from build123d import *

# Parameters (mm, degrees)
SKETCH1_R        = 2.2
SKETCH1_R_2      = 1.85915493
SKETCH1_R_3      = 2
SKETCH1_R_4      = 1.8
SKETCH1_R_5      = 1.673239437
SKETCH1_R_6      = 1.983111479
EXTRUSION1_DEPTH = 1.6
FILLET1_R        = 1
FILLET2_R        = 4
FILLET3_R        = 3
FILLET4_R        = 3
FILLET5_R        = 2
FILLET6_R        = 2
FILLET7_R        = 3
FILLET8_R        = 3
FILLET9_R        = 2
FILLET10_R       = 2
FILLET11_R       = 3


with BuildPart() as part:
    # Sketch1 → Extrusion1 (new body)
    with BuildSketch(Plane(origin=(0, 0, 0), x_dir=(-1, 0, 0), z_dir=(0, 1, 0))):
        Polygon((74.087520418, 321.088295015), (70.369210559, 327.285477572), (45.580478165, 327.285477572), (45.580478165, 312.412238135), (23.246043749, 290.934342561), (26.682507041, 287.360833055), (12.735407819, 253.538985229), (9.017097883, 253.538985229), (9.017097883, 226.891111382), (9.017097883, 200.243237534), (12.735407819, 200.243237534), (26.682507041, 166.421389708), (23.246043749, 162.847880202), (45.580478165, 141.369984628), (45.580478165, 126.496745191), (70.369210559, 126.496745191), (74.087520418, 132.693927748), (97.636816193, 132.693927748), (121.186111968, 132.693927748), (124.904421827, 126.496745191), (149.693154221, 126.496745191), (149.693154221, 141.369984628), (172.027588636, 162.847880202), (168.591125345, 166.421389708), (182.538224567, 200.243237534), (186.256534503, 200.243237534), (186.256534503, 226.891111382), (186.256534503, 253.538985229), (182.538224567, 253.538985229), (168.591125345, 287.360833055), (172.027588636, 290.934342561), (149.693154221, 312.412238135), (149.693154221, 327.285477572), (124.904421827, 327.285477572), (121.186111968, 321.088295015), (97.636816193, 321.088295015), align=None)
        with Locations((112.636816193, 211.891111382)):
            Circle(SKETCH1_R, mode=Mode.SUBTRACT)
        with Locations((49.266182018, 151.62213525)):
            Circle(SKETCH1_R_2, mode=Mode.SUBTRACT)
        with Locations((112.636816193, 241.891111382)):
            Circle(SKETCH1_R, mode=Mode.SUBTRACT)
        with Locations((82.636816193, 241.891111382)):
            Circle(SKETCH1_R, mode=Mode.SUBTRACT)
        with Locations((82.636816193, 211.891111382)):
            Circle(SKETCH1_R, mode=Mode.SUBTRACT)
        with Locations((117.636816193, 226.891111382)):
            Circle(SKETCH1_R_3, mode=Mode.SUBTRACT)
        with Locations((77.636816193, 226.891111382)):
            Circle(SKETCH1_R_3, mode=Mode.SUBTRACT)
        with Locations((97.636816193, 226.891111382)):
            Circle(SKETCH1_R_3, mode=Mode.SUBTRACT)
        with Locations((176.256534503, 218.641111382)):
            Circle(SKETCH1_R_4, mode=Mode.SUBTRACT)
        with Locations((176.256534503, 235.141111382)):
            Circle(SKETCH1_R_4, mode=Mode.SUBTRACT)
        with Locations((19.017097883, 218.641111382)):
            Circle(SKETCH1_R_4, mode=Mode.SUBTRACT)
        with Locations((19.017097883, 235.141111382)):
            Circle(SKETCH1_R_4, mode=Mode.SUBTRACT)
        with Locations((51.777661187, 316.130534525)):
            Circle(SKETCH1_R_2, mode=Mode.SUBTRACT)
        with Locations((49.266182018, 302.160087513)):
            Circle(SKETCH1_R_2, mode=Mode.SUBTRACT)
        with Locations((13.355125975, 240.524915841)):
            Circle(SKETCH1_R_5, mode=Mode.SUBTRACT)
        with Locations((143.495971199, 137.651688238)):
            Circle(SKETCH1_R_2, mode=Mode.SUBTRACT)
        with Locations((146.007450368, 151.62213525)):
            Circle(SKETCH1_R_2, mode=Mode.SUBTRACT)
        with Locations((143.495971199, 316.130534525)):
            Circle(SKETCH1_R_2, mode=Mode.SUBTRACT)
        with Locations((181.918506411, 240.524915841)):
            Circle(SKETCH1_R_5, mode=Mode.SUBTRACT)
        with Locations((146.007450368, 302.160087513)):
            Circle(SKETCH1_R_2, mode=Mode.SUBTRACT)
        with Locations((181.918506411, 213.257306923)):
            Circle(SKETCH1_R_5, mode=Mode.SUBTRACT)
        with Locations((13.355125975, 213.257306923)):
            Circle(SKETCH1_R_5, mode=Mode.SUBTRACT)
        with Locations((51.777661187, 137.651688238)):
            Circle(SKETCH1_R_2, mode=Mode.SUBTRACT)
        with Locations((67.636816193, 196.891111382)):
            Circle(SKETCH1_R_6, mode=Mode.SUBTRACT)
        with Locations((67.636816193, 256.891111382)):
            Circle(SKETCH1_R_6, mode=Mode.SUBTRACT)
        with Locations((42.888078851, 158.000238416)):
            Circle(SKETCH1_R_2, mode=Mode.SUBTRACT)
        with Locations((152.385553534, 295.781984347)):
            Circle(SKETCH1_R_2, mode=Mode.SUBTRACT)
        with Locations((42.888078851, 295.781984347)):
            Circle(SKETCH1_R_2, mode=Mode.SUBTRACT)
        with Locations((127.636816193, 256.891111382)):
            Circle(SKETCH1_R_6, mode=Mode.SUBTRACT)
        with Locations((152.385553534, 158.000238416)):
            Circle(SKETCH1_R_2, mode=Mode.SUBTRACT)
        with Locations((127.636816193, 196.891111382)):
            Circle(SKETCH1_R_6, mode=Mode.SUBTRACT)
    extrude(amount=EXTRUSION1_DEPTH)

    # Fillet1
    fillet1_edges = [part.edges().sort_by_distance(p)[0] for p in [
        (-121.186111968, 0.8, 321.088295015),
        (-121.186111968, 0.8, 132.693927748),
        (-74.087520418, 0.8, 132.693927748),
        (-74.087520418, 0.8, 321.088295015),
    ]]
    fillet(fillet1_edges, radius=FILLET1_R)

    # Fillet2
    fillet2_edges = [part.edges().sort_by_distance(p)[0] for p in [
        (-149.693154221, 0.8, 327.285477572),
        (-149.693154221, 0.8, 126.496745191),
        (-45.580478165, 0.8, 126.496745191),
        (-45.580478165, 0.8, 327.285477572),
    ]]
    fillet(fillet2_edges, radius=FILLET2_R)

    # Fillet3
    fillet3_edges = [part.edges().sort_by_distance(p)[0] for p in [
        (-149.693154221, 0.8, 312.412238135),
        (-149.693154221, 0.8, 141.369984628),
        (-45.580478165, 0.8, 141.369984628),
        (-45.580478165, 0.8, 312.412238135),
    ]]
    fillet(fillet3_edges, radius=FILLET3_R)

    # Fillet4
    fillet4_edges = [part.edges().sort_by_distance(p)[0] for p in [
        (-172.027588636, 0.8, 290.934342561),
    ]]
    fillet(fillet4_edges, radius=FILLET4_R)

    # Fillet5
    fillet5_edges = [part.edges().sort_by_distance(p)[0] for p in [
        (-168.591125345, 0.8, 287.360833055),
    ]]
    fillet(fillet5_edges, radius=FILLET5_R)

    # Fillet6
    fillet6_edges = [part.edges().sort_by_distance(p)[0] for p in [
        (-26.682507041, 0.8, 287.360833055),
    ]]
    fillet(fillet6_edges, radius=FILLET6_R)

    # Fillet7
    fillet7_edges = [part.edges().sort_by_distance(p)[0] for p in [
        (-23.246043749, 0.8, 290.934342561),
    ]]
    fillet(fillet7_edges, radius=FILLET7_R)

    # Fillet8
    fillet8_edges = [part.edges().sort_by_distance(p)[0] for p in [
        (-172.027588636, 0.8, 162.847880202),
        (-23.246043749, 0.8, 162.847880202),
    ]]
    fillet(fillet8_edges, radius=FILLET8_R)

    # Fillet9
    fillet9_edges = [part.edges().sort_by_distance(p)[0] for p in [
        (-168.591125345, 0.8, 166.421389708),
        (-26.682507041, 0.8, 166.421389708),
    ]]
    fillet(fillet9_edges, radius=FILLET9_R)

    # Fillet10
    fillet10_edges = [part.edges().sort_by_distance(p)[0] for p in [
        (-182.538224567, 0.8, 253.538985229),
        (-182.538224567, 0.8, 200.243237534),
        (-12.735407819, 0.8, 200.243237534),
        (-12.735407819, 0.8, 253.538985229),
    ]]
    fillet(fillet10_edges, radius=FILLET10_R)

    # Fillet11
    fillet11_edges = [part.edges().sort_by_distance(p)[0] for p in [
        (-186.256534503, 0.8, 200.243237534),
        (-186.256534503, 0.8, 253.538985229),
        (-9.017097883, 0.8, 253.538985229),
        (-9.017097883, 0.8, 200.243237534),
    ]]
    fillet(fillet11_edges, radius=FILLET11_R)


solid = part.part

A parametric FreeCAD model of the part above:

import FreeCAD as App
import Part
import Sketcher
Q = App.Units.Quantity


def edges_at(feature, points):
    """Names of the edges that pass closest to the given points."""
    edges = feature.Shape.Edges
    near = lambda p: min(range(len(edges)), key=lambda i: edges[i].distToShape(Part.Vertex(*p))[0])
    return sorted({f"Edge{near(p) + 1}" for p in points})

doc = App.newDocument("Part")
params = doc.addObject("Spreadsheet::Sheet", "Params")
for row, (alias, value) in enumerate([
    ("sketch1_diameter", "4 mm"),
    ("sketch1_diameter2", "3.6 mm"),
    ("sketch1_diameter3", "4.4 mm"),
    ("pad1_length", "1.6 mm"),
    ("fillet_radius", "1 mm"),
    ("fillet2_radius", "4 mm"),
    ("fillet3_radius", "3 mm"),
    ("fillet4_radius", "3 mm"),
    ("fillet5_radius", "2 mm"),
    ("fillet6_radius", "2 mm"),
    ("fillet7_radius", "3 mm"),
    ("fillet8_radius", "3 mm"),
    ("fillet9_radius", "2 mm"),
    ("fillet10_radius", "2 mm"),
    ("fillet11_radius", "3 mm"),
], start=1):
    params.set(f"A{row}", alias)
    params.set(f"B{row}", "=" + value)
    params.setAlias(f"B{row}", alias)

body = doc.addObject("PartDesign::Body", "Body")

# Sketch on XZ plane
sketch1 = body.newObject("Sketcher::SketchObject", "Sketch")
sketch1.AttachmentSupport = (doc.getObject("XZ_Plane"), [""])
sketch1.MapMode = "FlatFace"
sketch1.addGeometry([
    Part.LineSegment(App.Vector(-74.1, 321.1, 0), App.Vector(-70.4, 327.3, 0)),  # 0
    Part.LineSegment(App.Vector(-70.4, 327.3, 0), App.Vector(-45.6, 327.3, 0)),  # 1
    Part.LineSegment(App.Vector(-45.6, 327.3, 0), App.Vector(-45.6, 312.4, 0)),  # 2
    Part.LineSegment(App.Vector(-45.6, 312.4, 0), App.Vector(-23.2, 290.9, 0)),  # 3
    Part.LineSegment(App.Vector(-23.2, 290.9, 0), App.Vector(-26.7, 287.4, 0)),  # 4
    Part.LineSegment(App.Vector(-26.7, 287.4, 0), App.Vector(-12.7, 253.5, 0)),  # 5
    Part.LineSegment(App.Vector(-12.7, 253.5, 0), App.Vector(-9, 253.5, 0)),  # 6
    Part.LineSegment(App.Vector(-9, 253.5, 0), App.Vector(-9, 200.2, 0)),  # 7
    Part.LineSegment(App.Vector(-9, 200.2, 0), App.Vector(-12.7, 200.2, 0)),  # 8
    Part.LineSegment(App.Vector(-12.7, 200.2, 0), App.Vector(-26.7, 166.4, 0)),  # 9
    Part.LineSegment(App.Vector(-26.7, 166.4, 0), App.Vector(-23.2, 162.8, 0)),  # 10
    Part.LineSegment(App.Vector(-23.2, 162.8, 0), App.Vector(-45.6, 141.4, 0)),  # 11
    Part.LineSegment(App.Vector(-45.6, 141.4, 0), App.Vector(-45.6, 126.5, 0)),  # 12
    Part.LineSegment(App.Vector(-45.6, 126.5, 0), App.Vector(-70.4, 126.5, 0)),  # 13
    Part.LineSegment(App.Vector(-70.4, 126.5, 0), App.Vector(-74.1, 132.7, 0)),  # 14
    Part.LineSegment(App.Vector(-74.1, 132.7, 0), App.Vector(-121.2, 132.7, 0)),  # 15
    Part.LineSegment(App.Vector(-121.2, 132.7, 0), App.Vector(-124.9, 126.5, 0)),  # 16
    Part.LineSegment(App.Vector(-124.9, 126.5, 0), App.Vector(-149.7, 126.5, 0)),  # 17
    Part.LineSegment(App.Vector(-149.7, 126.5, 0), App.Vector(-149.7, 141.4, 0)),  # 18
    Part.LineSegment(App.Vector(-149.7, 141.4, 0), App.Vector(-172, 162.8, 0)),  # 19
    Part.LineSegment(App.Vector(-172, 162.8, 0), App.Vector(-168.6, 166.4, 0)),  # 20
    Part.LineSegment(App.Vector(-168.6, 166.4, 0), App.Vector(-182.5, 200.2, 0)),  # 21
    Part.LineSegment(App.Vector(-182.5, 200.2, 0), App.Vector(-186.3, 200.2, 0)),  # 22
    Part.LineSegment(App.Vector(-186.3, 200.2, 0), App.Vector(-186.3, 253.5, 0)),  # 23
    Part.LineSegment(App.Vector(-186.3, 253.5, 0), App.Vector(-182.5, 253.5, 0)),  # 24
    Part.LineSegment(App.Vector(-182.5, 253.5, 0), App.Vector(-168.6, 287.4, 0)),  # 25
    Part.LineSegment(App.Vector(-168.6, 287.4, 0), App.Vector(-172, 290.9, 0)),  # 26
    Part.LineSegment(App.Vector(-172, 290.9, 0), App.Vector(-149.7, 312.4, 0)),  # 27
    Part.LineSegment(App.Vector(-149.7, 312.4, 0), App.Vector(-149.7, 327.3, 0)),  # 28
    Part.LineSegment(App.Vector(-149.7, 327.3, 0), App.Vector(-124.9, 327.3, 0)),  # 29
    Part.LineSegment(App.Vector(-124.9, 327.3, 0), App.Vector(-121.2, 321.1, 0)),  # 30
    Part.LineSegment(App.Vector(-121.2, 321.1, 0), App.Vector(-74.1, 321.1, 0)),  # 31
    Part.Circle(App.Vector(-51.8, 137.7, 0), App.Vector(0, 0, 1), 1.9),  # 32
    Part.Circle(App.Vector(-42.9, 158, 0), App.Vector(0, 0, 1), 1.9),  # 33
    Part.Circle(App.Vector(-49.3, 151.6, 0), App.Vector(0, 0, 1), 1.9),  # 34
    Part.Circle(App.Vector(-13.4, 213.3, 0), App.Vector(0, 0, 1), 1.7),  # 35
    Part.Circle(App.Vector(-19, 218.6, 0), App.Vector(0, 0, 1), 1.8),  # 36
    Part.Circle(App.Vector(-67.6, 196.9, 0), App.Vector(0, 0, 1), 2),  # 37
    Part.Circle(App.Vector(-82.6, 211.9, 0), App.Vector(0, 0, 1), 2.2),  # 38
    Part.Circle(App.Vector(-143.5, 137.7, 0), App.Vector(0, 0, 1), 1.9),  # 39
    Part.Circle(App.Vector(-146, 151.6, 0), App.Vector(0, 0, 1), 1.9),  # 40
    Part.Circle(App.Vector(-152.4, 158, 0), App.Vector(0, 0, 1), 1.9),  # 41
    Part.Circle(App.Vector(-127.6, 196.9, 0), App.Vector(0, 0, 1), 2),  # 42
    Part.Circle(App.Vector(-112.6, 211.9, 0), App.Vector(0, 0, 1), 2.2),  # 43
    Part.Circle(App.Vector(-181.9, 213.3, 0), App.Vector(0, 0, 1), 1.7),  # 44
    Part.Circle(App.Vector(-176.3, 218.6, 0), App.Vector(0, 0, 1), 1.8),  # 45
    Part.Circle(App.Vector(-19, 235.1, 0), App.Vector(0, 0, 1), 1.8),  # 46
    Part.Circle(App.Vector(-13.4, 240.5, 0), App.Vector(0, 0, 1), 1.7),  # 47
    Part.Circle(App.Vector(-77.6, 226.9, 0), App.Vector(0, 0, 1), 2),  # 48
    Part.Circle(App.Vector(-82.6, 241.9, 0), App.Vector(0, 0, 1), 2.2),  # 49
    Part.Circle(App.Vector(-67.6, 256.9, 0), App.Vector(0, 0, 1), 2),  # 50
    Part.Circle(App.Vector(-42.9, 295.8, 0), App.Vector(0, 0, 1), 1.9),  # 51
    Part.Circle(App.Vector(-49.3, 302.2, 0), App.Vector(0, 0, 1), 1.9),  # 52
    Part.Circle(App.Vector(-51.8, 316.1, 0), App.Vector(0, 0, 1), 1.9),  # 53
    Part.Circle(App.Vector(-97.6, 226.9, 0), App.Vector(0, 0, 1), 2),  # 54
    Part.Circle(App.Vector(-117.6, 226.9, 0), App.Vector(0, 0, 1), 2),  # 55
    Part.Circle(App.Vector(-112.6, 241.9, 0), App.Vector(0, 0, 1), 2.2),  # 56
    Part.Circle(App.Vector(-127.6, 256.9, 0), App.Vector(0, 0, 1), 2),  # 57
    Part.Circle(App.Vector(-176.3, 235.1, 0), App.Vector(0, 0, 1), 1.8),  # 58
    Part.Circle(App.Vector(-181.9, 240.5, 0), App.Vector(0, 0, 1), 1.7),  # 59
    Part.Circle(App.Vector(-146, 302.2, 0), App.Vector(0, 0, 1), 1.9),  # 60
    Part.Circle(App.Vector(-152.4, 295.8, 0), App.Vector(0, 0, 1), 1.9),  # 61
    Part.Circle(App.Vector(-143.5, 316.1, 0), App.Vector(0, 0, 1), 1.9),  # 62
], False)
sketch1.addConstraint([
    Sketcher.Constraint("Coincident", 0, 2, 1, 1),
    Sketcher.Constraint("Coincident", 1, 2, 2, 1),
    Sketcher.Constraint("Coincident", 2, 2, 3, 1),
    Sketcher.Constraint("Coincident", 3, 2, 4, 1),
    Sketcher.Constraint("Coincident", 4, 2, 5, 1),
    Sketcher.Constraint("Coincident", 5, 2, 6, 1),
    Sketcher.Constraint("Coincident", 6, 2, 7, 1),
    Sketcher.Constraint("Coincident", 7, 2, 8, 1),
    Sketcher.Constraint("Coincident", 8, 2, 9, 1),
    Sketcher.Constraint("Coincident", 9, 2, 10, 1),
    Sketcher.Constraint("Coincident", 10, 2, 11, 1),
    Sketcher.Constraint("Coincident", 11, 2, 12, 1),
    Sketcher.Constraint("Coincident", 12, 2, 13, 1),
    Sketcher.Constraint("Coincident", 13, 2, 14, 1),
    Sketcher.Constraint("Coincident", 14, 2, 15, 1),
    Sketcher.Constraint("Coincident", 15, 2, 16, 1),
    Sketcher.Constraint("Coincident", 16, 2, 17, 1),
    Sketcher.Constraint("Coincident", 17, 2, 18, 1),
    Sketcher.Constraint("Coincident", 18, 2, 19, 1),
    Sketcher.Constraint("Coincident", 19, 2, 20, 1),
    Sketcher.Constraint("Coincident", 20, 2, 21, 1),
    Sketcher.Constraint("Coincident", 21, 2, 22, 1),
    Sketcher.Constraint("Coincident", 22, 2, 23, 1),
    Sketcher.Constraint("Coincident", 23, 2, 24, 1),
    Sketcher.Constraint("Coincident", 24, 2, 25, 1),
    Sketcher.Constraint("Coincident", 25, 2, 26, 1),
    Sketcher.Constraint("Coincident", 26, 2, 27, 1),
    Sketcher.Constraint("Coincident", 27, 2, 28, 1),
    Sketcher.Constraint("Coincident", 28, 2, 29, 1),
    Sketcher.Constraint("Coincident", 29, 2, 30, 1),
    Sketcher.Constraint("Coincident", 30, 2, 31, 1),
    Sketcher.Constraint("Coincident", 31, 2, 0, 1),
    Sketcher.Constraint("Horizontal", 1),
    Sketcher.Constraint("Vertical", 2),
    Sketcher.Constraint("Horizontal", 6),
    Sketcher.Constraint("Vertical", 7),
    Sketcher.Constraint("Horizontal", 8),
    Sketcher.Constraint("Vertical", 12),
    Sketcher.Constraint("Horizontal", 13),
    Sketcher.Constraint("Horizontal", 15),
    Sketcher.Constraint("Horizontal", 17),
    Sketcher.Constraint("Vertical", 18),
    Sketcher.Constraint("Horizontal", 22),
    Sketcher.Constraint("Vertical", 23),
    Sketcher.Constraint("Horizontal", 24),
    Sketcher.Constraint("Vertical", 28),
    Sketcher.Constraint("Horizontal", 29),
    Sketcher.Constraint("Horizontal", 31),
    Sketcher.Constraint("Equal", 32, 33),
    Sketcher.Constraint("Equal", 33, 34),
    Sketcher.Constraint("Equal", 34, 39),
    Sketcher.Constraint("Equal", 39, 40),
    Sketcher.Constraint("Equal", 40, 41),
    Sketcher.Constraint("Equal", 37, 42),
    Sketcher.Constraint("Equal", 38, 43),
    Sketcher.Constraint("Equal", 35, 44),
    Sketcher.Constraint("Equal", 36, 45),
    Sketcher.Constraint("Equal", 45, 46),
    Sketcher.Constraint("Equal", 44, 47),
    Sketcher.Constraint("Equal", 43, 49),
    Sketcher.Constraint("Equal", 42, 50),
    Sketcher.Constraint("Equal", 41, 51),
    Sketcher.Constraint("Equal", 51, 52),
    Sketcher.Constraint("Equal", 52, 53),
    Sketcher.Constraint("Equal", 48, 54),
    Sketcher.Constraint("Equal", 54, 55),
    Sketcher.Constraint("Equal", 49, 56),
    Sketcher.Constraint("Equal", 50, 57),
    Sketcher.Constraint("Equal", 46, 58),
    Sketcher.Constraint("Equal", 47, 59),
    Sketcher.Constraint("Equal", 53, 60),
    Sketcher.Constraint("Equal", 60, 61),
    Sketcher.Constraint("Equal", 61, 62),
    Sketcher.Constraint("Perpendicular", 3, 4),
    Sketcher.Constraint("Perpendicular", 10, 11),
    Sketcher.Constraint("Parallel", 0, 16),
    Sketcher.Constraint("Perpendicular", 4, 19),
    Sketcher.Constraint("Perpendicular", 19, 20),
    Sketcher.Constraint("Parallel", 5, 21),
    Sketcher.Constraint("Parallel", 9, 25),
    Sketcher.Constraint("Perpendicular", 11, 26),
    Sketcher.Constraint("Perpendicular", 26, 27),
    Sketcher.Constraint("Parallel", 14, 30),
    Sketcher.Constraint("Horizontal", 32, 3, 39, 3),
    Sketcher.Constraint("Horizontal", 34, 3, 40, 3),
    Sketcher.Constraint("Horizontal", 33, 3, 41, 3),
    Sketcher.Constraint("Horizontal", 37, 3, 42, 3),
    Sketcher.Constraint("Horizontal", 38, 3, 43, 3),
    Sketcher.Constraint("Horizontal", 35, 3, 44, 3),
    Sketcher.Constraint("Horizontal", 36, 3, 45, 3),
    Sketcher.Constraint("Horizontal", 48, 3, 54, 3),
    Sketcher.Constraint("Horizontal", 54, 3, 55, 3),
    Sketcher.Constraint("Horizontal", 49, 3, 56, 3),
    Sketcher.Constraint("Horizontal", 50, 3, 57, 3),
    Sketcher.Constraint("Horizontal", 46, 3, 58, 3),
    Sketcher.Constraint("Horizontal", 47, 3, 59, 3),
    Sketcher.Constraint("Horizontal", 52, 3, 60, 3),
    Sketcher.Constraint("Horizontal", 51, 3, 61, 3),
    Sketcher.Constraint("Horizontal", 53, 3, 62, 3),
    Sketcher.Constraint("Horizontal", 13, 2, 16, 2),
    Sketcher.Constraint("Horizontal", 11, 2, 18, 2),
    Sketcher.Constraint("Horizontal", 10, 2, 19, 2),
    Sketcher.Constraint("Horizontal", 9, 2, 20, 2),
    Sketcher.Constraint("Horizontal", 8, 2, 21, 2),
    Sketcher.Constraint("Horizontal", 6, 2, 23, 2),
    Sketcher.Constraint("Horizontal", 4, 2, 25, 2),
    Sketcher.Constraint("Horizontal", 3, 2, 26, 2),
    Sketcher.Constraint("Horizontal", 2, 2, 27, 2),
    Sketcher.Constraint("Horizontal", 1, 2, 28, 2),
    Sketcher.Constraint("Vertical", 36, 3, 46, 3),
    Sketcher.Constraint("Vertical", 35, 3, 47, 3),
    Sketcher.Constraint("Vertical", 38, 3, 49, 3),
    Sketcher.Constraint("Vertical", 37, 3, 50, 3),
    Sketcher.Constraint("Vertical", 33, 3, 51, 3),
    Sketcher.Constraint("Vertical", 34, 3, 52, 3),
    Sketcher.Constraint("Vertical", 32, 3, 53, 3),
    Sketcher.Constraint("Vertical", 43, 3, 56, 3),
    Sketcher.Constraint("Vertical", 42, 3, 57, 3),
    Sketcher.Constraint("Vertical", 45, 3, 58, 3),
    Sketcher.Constraint("Vertical", 44, 3, 59, 3),
    Sketcher.Constraint("Vertical", 40, 3, 60, 3),
    Sketcher.Constraint("Vertical", 41, 3, 61, 3),
    Sketcher.Constraint("Vertical", 39, 3, 62, 3),
    Sketcher.Constraint("Vertical", 5, 2, 8, 2),
    Sketcher.Constraint("Vertical", 4, 2, 9, 2),
    Sketcher.Constraint("Vertical", 3, 2, 10, 2),
    Sketcher.Constraint("Vertical", 2, 2, 11, 2),
    Sketcher.Constraint("Vertical", 0, 2, 13, 2),
    Sketcher.Constraint("Vertical", 21, 2, 24, 2),
    Sketcher.Constraint("Vertical", 20, 2, 25, 2),
    Sketcher.Constraint("Vertical", 19, 2, 26, 2),
    Sketcher.Constraint("Vertical", 16, 2, 29, 2),
    Sketcher.Constraint("Vertical", 15, 2, 30, 2),
    Sketcher.Constraint("Vertical", 14, 2, 31, 2),
    Sketcher.Constraint("Equal", 13, 17),
    Sketcher.Constraint("Equal", 8, 22),
    Sketcher.Constraint("Equal", 2, 12),
    Sketcher.Constraint("Diameter", 48, 4.0),
    Sketcher.Constraint("Diameter", 36, 3.6),
    Sketcher.Constraint("Diameter", 38, 4.4),
    Sketcher.Constraint("Angle", 3, Q("-43.88 deg")),
    Sketcher.Constraint("Diameter", 32, 3.71831),
    Sketcher.Constraint("Diameter", 35, 3.346479),
    Sketcher.Constraint("Diameter", 37, 3.966223),
    Sketcher.Constraint("DistanceX", 6, 1, 6, 2, 3.71831),
    Sketcher.Constraint("DistanceX", 15, 2, 15, 1, 47.098592),
    Sketcher.Constraint("DistanceY", 2, 2, 2, 1, 14.873239),
    Sketcher.Constraint("DistanceX", 1, 1, 1, 2, 24.788732),
    Sketcher.Constraint("DistanceY", 7, 2, 7, 1, 53.295748),
    Sketcher.Constraint("DistanceX", 32, 3, -1, 1, 51.777661),
    Sketcher.Constraint("DistanceY", -1, 1, 32, 3, 137.651688),
    Sketcher.Constraint("DistanceX", 33, 3, -1, 1, 42.888079),
    Sketcher.Constraint("DistanceY", -1, 1, 33, 3, 158.000238),
    Sketcher.Constraint("DistanceY", -1, 1, 36, 3, 218.641111),
    Sketcher.Constraint("DistanceY", -1, 1, 37, 3, 196.891111),
    Sketcher.Constraint("DistanceY", -1, 1, 38, 3, 211.891111),
    Sketcher.Constraint("DistanceX", 39, 3, -1, 1, 143.495971),
    Sketcher.Constraint("DistanceX", 40, 3, -1, 1, 146.00745),
    Sketcher.Constraint("DistanceY", -1, 1, 46, 3, 235.141111),
    Sketcher.Constraint("DistanceY", -1, 1, 48, 3, 226.891111),
    Sketcher.Constraint("DistanceY", -1, 1, 49, 3, 241.891111),
    Sketcher.Constraint("DistanceY", -1, 1, 50, 3, 256.891111),
    Sketcher.Constraint("DistanceX", 0, 2, -1, 1, 70.369211),
    Sketcher.Constraint("DistanceY", -1, 1, 2, 2, 312.412238),
    Sketcher.Constraint("DistanceY", -1, 1, 9, 2, 166.42139),
    Sketcher.Constraint("DistanceY", -1, 1, 10, 2, 162.84788),
    Sketcher.Constraint("DistanceX", 14, 2, -1, 1, 74.08752),
    Sketcher.Constraint("DistanceX", 19, 2, -1, 1, 172.027589),
    Sketcher.Constraint("Distance", 0, 7.227095),
    Sketcher.Constraint("Distance", 5, 36.584682),
    Sketcher.Constraint("DistanceX", 34, 3, -1, 1, 49.266182),
    Sketcher.Constraint("DistanceY", -1, 1, 34, 3, 151.622135),
    Sketcher.Constraint("DistanceX", 35, 3, -1, 1, 13.355126),
    Sketcher.Constraint("DistanceY", -1, 1, 35, 3, 213.257307),
    Sketcher.Constraint("DistanceX", 36, 3, -1, 1, 19.017098),
    Sketcher.Constraint("DistanceX", 37, 3, -1, 1, 67.636816),
    Sketcher.Constraint("DistanceX", 38, 3, -1, 1, 82.636816),
    Sketcher.Constraint("DistanceX", 41, 3, -1, 1, 152.385554),
    Sketcher.Constraint("DistanceX", 42, 3, -1, 1, 127.636816),
    Sketcher.Constraint("DistanceX", 43, 3, -1, 1, 112.636816),
    Sketcher.Constraint("DistanceX", 44, 3, -1, 1, 181.918506),
    Sketcher.Constraint("DistanceX", 45, 3, -1, 1, 176.256535),
    Sketcher.Constraint("DistanceY", -1, 1, 47, 3, 240.524916),
    Sketcher.Constraint("DistanceX", 48, 3, -1, 1, 77.636816),
    Sketcher.Constraint("DistanceY", -1, 1, 51, 3, 295.781984),
    Sketcher.Constraint("DistanceY", -1, 1, 52, 3, 302.160088),
    Sketcher.Constraint("DistanceY", -1, 1, 53, 3, 316.130535),
    Sketcher.Constraint("DistanceX", 54, 3, -1, 1, 97.636816),
    Sketcher.Constraint("DistanceX", 55, 3, -1, 1, 117.636816),
])
sketch1.setExpression("Constraints[137]", "Params.sketch1_diameter")
sketch1.setExpression("Constraints[138]", "Params.sketch1_diameter2")
sketch1.setExpression("Constraints[139]", "Params.sketch1_diameter3")
pad1 = body.newObject("PartDesign::Pad", "Pad")
pad1.Profile = sketch1
pad1.setExpression("Length", "Params.pad1_length")
pad1.Reversed = True
doc.recompute()

fillet = body.newObject("PartDesign::Fillet", "Fillet")
fillet.Base = (pad1, edges_at(pad1, [
    (-121.186, 0.8, 321.088),
    (-121.186, 0.8, 132.694),
    (-74.088, 0.8, 132.694),
    (-74.088, 0.8, 321.088),
]))
fillet.setExpression("Radius", "Params.fillet_radius")
doc.recompute()

fillet2 = body.newObject("PartDesign::Fillet", "Fillet001")
fillet2.Base = (fillet, edges_at(fillet, [
    (-149.693, 0.8, 327.285),
    (-149.693, 0.8, 126.497),
    (-45.58, 0.8, 126.497),
    (-45.58, 0.8, 327.285),
]))
fillet2.setExpression("Radius", "Params.fillet2_radius")
doc.recompute()

fillet3 = body.newObject("PartDesign::Fillet", "Fillet002")
fillet3.Base = (fillet2, edges_at(fillet2, [
    (-149.693, 0.8, 312.412),
    (-149.693, 0.8, 141.37),
    (-45.58, 0.8, 141.37),
    (-45.58, 0.8, 312.412),
]))
fillet3.setExpression("Radius", "Params.fillet3_radius")
doc.recompute()

fillet4 = body.newObject("PartDesign::Fillet", "Fillet003")
fillet4.Base = (fillet3, edges_at(fillet3, [(-172.028, 0.8, 290.934)]))
fillet4.setExpression("Radius", "Params.fillet4_radius")
doc.recompute()

fillet5 = body.newObject("PartDesign::Fillet", "Fillet004")
fillet5.Base = (fillet4, edges_at(fillet4, [(-168.591, 0.8, 287.361)]))
fillet5.setExpression("Radius", "Params.fillet5_radius")
doc.recompute()

fillet6 = body.newObject("PartDesign::Fillet", "Fillet005")
fillet6.Base = (fillet5, edges_at(fillet5, [(-26.683, 0.8, 287.361)]))
fillet6.setExpression("Radius", "Params.fillet6_radius")
doc.recompute()

fillet7 = body.newObject("PartDesign::Fillet", "Fillet006")
fillet7.Base = (fillet6, edges_at(fillet6, [(-23.246, 0.8, 290.934)]))
fillet7.setExpression("Radius", "Params.fillet7_radius")
doc.recompute()

fillet8 = body.newObject("PartDesign::Fillet", "Fillet007")
fillet8.Base = (fillet7, edges_at(fillet7, [(-172.028, 0.8, 162.848), (-23.246, 0.8, 162.848)]))
fillet8.setExpression("Radius", "Params.fillet8_radius")
doc.recompute()

fillet9 = body.newObject("PartDesign::Fillet", "Fillet008")
fillet9.Base = (fillet8, edges_at(fillet8, [(-168.591, 0.8, 166.421), (-26.683, 0.8, 166.421)]))
fillet9.setExpression("Radius", "Params.fillet9_radius")
doc.recompute()

fillet10 = body.newObject("PartDesign::Fillet", "Fillet009")
fillet10.Base = (fillet9, edges_at(fillet9, [
    (-182.538, 0.8, 253.539),
    (-182.538, 0.8, 200.243),
    (-12.735, 0.8, 200.243),
    (-12.735, 0.8, 253.539),
]))
fillet10.setExpression("Radius", "Params.fillet10_radius")
doc.recompute()

fillet11 = body.newObject("PartDesign::Fillet", "Fillet010")
fillet11.Base = (fillet10, edges_at(fillet10, [
    (-186.257, 0.8, 200.243),
    (-186.257, 0.8, 253.539),
    (-9.017, 0.8, 253.539),
    (-9.017, 0.8, 200.243),
]))
fillet11.setExpression("Radius", "Params.fillet11_radius")

doc.recompute()
